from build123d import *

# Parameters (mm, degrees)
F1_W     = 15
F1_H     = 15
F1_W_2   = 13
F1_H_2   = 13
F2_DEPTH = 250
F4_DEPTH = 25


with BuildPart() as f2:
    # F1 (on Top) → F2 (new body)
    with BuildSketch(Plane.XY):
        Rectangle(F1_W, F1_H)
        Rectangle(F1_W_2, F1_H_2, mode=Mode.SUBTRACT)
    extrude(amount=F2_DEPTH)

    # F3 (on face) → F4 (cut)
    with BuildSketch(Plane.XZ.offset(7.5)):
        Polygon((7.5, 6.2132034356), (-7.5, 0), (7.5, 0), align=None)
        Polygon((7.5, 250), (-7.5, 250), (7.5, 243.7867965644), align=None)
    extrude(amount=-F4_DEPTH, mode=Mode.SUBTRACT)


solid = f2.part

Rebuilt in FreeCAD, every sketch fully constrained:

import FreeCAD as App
import Part
import Sketcher
Q = App.Units.Quantity


def add_polygon(sketch, points):
    """Adds a closed chain of lines whose ends are joined by coincident constraints."""
    first, n = sketch.GeometryCount, len(points)
    for a, b in zip(points, points[1:] + points[:1]):
        sketch.addGeometry(Part.LineSegment(App.Vector(*a, 0), App.Vector(*b, 0)), False)
    for i in range(n):
        sketch.addConstraint(Sketcher.Constraint("Coincident", first + i, 2, first + (i + 1) % n, 1))

doc = App.newDocument("Part")
body = doc.addObject("PartDesign::Body", "Body")

# Sketch on XY plane
sketch1 = body.newObject("Sketcher::SketchObject", "Sketch")
sketch1.AttachmentSupport = (doc.getObject("XY_Plane"), [""])
sketch1.MapMode = "FlatFace"
add_polygon(sketch1, [(-8, 8), (-8, -8), (8, -8), (8, 8)])  # lines 0-3
add_polygon(sketch1, [(6, -6), (-6, -6), (-6, 6), (6, 6)])  # lines 4-7
sketch1.addConstraint([
    Sketcher.Constraint("Vertical", 0),
    Sketcher.Constraint("Horizontal", 1),
    Sketcher.Constraint("Vertical", 2),
    Sketcher.Constraint("Horizontal", 3),
    Sketcher.Constraint("Horizontal", 4),
    Sketcher.Constraint("Vertical", 5),
    Sketcher.Constraint("Horizontal", 6),
    Sketcher.Constraint("Vertical", 7),
    Sketcher.Constraint("Symmetric", 0, 2, 2, 2, -1, 1),
    Sketcher.Constraint("Symmetric", 4, 2, 6, 2, -1, 1),
    Sketcher.Constraint("Equal", 3, 0),
    Sketcher.Constraint("Equal", 6, 5),
    Sketcher.Constraint("DistanceX", 1, 1, 1, 2, 15.0),
    Sketcher.Constraint("DistanceX", 4, 2, 4, 1, 13.0),
])
pad1 = body.newObject("PartDesign::Pad", "Pad")
pad1.Profile = sketch1
pad1.Length = 250

# Sketch on XZ plane
sketch2 = body.newObject("Sketcher::SketchObject", "Sketch001")
sketch2.AttachmentSupport = (doc.getObject("XZ_Plane"), [""])
sketch2.MapMode = "FlatFace"
sketch2.AttachmentOffset = App.Placement(App.Vector(0, 0, 7.5), App.Rotation())
add_polygon(sketch2, [(8, 6), (-8, 0), (8, 0)])  # lines 0-2
add_polygon(sketch2, [(8, 250), (-8, 250), (8, 244)])  # lines 3-5
sketch2.addConstraint([
    Sketcher.Constraint("Horizontal", 1),
    Sketcher.Constraint("Vertical", 2),
    Sketcher.Constraint("Horizontal", 3),
    Sketcher.Constraint("Vertical", 5),
    Sketcher.Constraint("Symmetric", 0, 2, 1, 2, -1, 1),
    Sketcher.Constraint("Vertical", 0, 2, 3, 2),
    Sketcher.Constraint("Vertical", 2, 2, 4, 2),
    Sketcher.Constraint("Equal", 2, 5),
    Sketcher.Constraint("DistanceX", 1, 1, 1, 2, 15.0),
    Sketcher.Constraint("DistanceY", -1, 1, 3, 2, 250.0),
    Sketcher.Constraint("Angle", 0, Q("-157.5 deg")),
])
pocket1 = body.newObject("PartDesign::Pocket", "Pocket")
pocket1.Profile = sketch2
pocket1.Length = 25

doc.recompute()
